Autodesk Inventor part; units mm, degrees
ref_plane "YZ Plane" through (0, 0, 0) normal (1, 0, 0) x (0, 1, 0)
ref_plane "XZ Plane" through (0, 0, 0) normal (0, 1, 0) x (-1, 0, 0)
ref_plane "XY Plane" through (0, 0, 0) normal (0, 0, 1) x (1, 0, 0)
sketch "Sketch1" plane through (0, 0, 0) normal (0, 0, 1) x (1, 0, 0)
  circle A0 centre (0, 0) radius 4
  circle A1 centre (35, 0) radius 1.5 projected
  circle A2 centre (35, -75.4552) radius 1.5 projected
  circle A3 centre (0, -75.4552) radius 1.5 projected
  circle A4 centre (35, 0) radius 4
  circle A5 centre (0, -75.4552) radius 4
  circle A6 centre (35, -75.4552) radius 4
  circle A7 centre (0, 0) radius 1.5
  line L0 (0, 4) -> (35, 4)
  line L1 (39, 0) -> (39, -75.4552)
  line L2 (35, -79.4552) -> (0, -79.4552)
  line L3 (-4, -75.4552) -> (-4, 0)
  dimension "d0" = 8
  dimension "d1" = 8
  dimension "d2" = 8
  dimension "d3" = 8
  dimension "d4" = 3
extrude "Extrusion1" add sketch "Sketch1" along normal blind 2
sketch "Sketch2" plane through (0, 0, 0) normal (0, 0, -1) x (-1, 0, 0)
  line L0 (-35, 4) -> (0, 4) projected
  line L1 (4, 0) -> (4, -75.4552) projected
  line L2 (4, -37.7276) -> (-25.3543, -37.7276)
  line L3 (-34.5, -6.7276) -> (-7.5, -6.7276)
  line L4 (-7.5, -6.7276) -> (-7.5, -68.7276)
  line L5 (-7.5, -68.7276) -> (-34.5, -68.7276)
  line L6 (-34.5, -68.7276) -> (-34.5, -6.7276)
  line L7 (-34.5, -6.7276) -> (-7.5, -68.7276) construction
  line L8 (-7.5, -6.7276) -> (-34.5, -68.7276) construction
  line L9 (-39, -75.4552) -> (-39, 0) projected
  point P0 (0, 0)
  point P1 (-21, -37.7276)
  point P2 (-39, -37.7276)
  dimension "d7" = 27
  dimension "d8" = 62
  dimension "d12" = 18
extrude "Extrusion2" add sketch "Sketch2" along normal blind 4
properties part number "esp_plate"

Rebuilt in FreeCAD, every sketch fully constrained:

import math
import FreeCAD as App
import Part
import Sketcher

V = App.Vector

doc = App.newDocument("Part")
body = doc.addObject("PartDesign::Body", "Body")

# Sketch on XY plane
sketch1 = body.newObject("Sketcher::SketchObject", "Sketch")
sketch1.AttachmentSupport = (doc.getObject("XY_Plane"), [""])
sketch1.MapMode = "FlatFace"
sketch1.addGeometry(Part.ArcOfCircle(Part.Circle(V(0, 0, 0), V(0, 0, 1), 4), math.radians(90), math.radians(180)), False)
sketch1.addGeometry(Part.LineSegment(V(-4, 0, 0), V(-4, -75.4552, 0)), False)
sketch1.addGeometry(Part.ArcOfCircle(Part.Circle(V(0, -75.4552, 0), V(0, 0, 1), 4), math.radians(180), math.radians(270)), False)
sketch1.addGeometry(Part.LineSegment(V(0, -79.4552, 0), V(35, -79.4552, 0)), False)
sketch1.addGeometry(Part.ArcOfCircle(Part.Circle(V(35, -75.4552, 0), V(0, 0, 1), 4), math.radians(-90), math.radians(0)), False)
sketch1.addGeometry(Part.LineSegment(V(39, -75.4552, 0), V(39, 0, 0)), False)
sketch1.addGeometry(Part.ArcOfCircle(Part.Circle(V(35, 0, 0), V(0, 0, 1), 4), math.radians(0), math.radians(90)), False)
sketch1.addGeometry(Part.LineSegment(V(35, 4, 0), V(0, 4, 0)), False)
sketch1.addGeometry(Part.Circle(V(0, 0, 0), V(0, 0, 1), 1.5), False)
sketch1.addGeometry(Part.Circle(V(35, 0, 0), V(0, 0, 1), 1.5), False)
sketch1.addGeometry(Part.Circle(V(35, -75.4552, 0), V(0, 0, 1), 1.5), False)
sketch1.addGeometry(Part.Circle(V(0, -75.4552, 0), V(0, 0, 1), 1.5), False)
sketch1.addConstraint(Sketcher.Constraint("Tangent", 0, 2, 1, 1))
sketch1.addConstraint(Sketcher.Constraint("Tangent", 1, 2, 2, 1))
sketch1.addConstraint(Sketcher.Constraint("Tangent", 2, 2, 3, 1))
sketch1.addConstraint(Sketcher.Constraint("Tangent", 3, 2, 4, 1))
sketch1.addConstraint(Sketcher.Constraint("Tangent", 4, 2, 5, 1))
sketch1.addConstraint(Sketcher.Constraint("Tangent", 5, 2, 6, 1))
sketch1.addConstraint(Sketcher.Constraint("Tangent", 6, 2, 7, 1))
sketch1.addConstraint(Sketcher.Constraint("Tangent", 7, 2, 0, 1))
sketch1.addConstraint(Sketcher.Constraint("Vertical", 1))
sketch1.addConstraint(Sketcher.Constraint("Horizontal", 3))
sketch1.addConstraint(Sketcher.Constraint("Vertical", 5))
sketch1.addConstraint(Sketcher.Constraint("Horizontal", 7))
sketch1.addConstraint(Sketcher.Constraint("Coincident", 0, 3, -1, 1))
sketch1.addConstraint(Sketcher.Constraint("Coincident", 8, 3, -1, 1))
sketch1.addConstraint(Sketcher.Constraint("Coincident", 9, 3, 6, 3))
sketch1.addConstraint(Sketcher.Constraint("Coincident", 10, 3, 4, 3))
sketch1.addConstraint(Sketcher.Constraint("Coincident", 11, 3, 2, 3))
sketch1.addConstraint(Sketcher.Constraint("Equal", 0, 2))
sketch1.addConstraint(Sketcher.Constraint("Equal", 2, 4))
sketch1.addConstraint(Sketcher.Constraint("Equal", 4, 6))
sketch1.addConstraint(Sketcher.Constraint("Equal", 8, 9))
sketch1.addConstraint(Sketcher.Constraint("Equal", 9, 10))
sketch1.addConstraint(Sketcher.Constraint("Equal", 10, 11))
sketch1.addConstraint(Sketcher.Constraint("Diameter", 8, 3.0))
sketch1.addConstraint(Sketcher.Constraint("Radius", 0, 4.0))
sketch1.addConstraint(Sketcher.Constraint("DistanceX", 3, 1, 3, 2, 35.0))
sketch1.addConstraint(Sketcher.Constraint("DistanceY", 1, 2, 1, 1, 75.4552))
pad1 = body.newObject("PartDesign::Pad", "Pad")
pad1.Profile = sketch1
pad1.Length = 2

# Sketch on XY plane
sketch2 = body.newObject("Sketcher::SketchObject", "Sketch001")
sketch2.AttachmentSupport = (doc.getObject("XY_Plane"), [""])
sketch2.MapMode = "FlatFace"
sketch2.addGeometry(Part.LineSegment(V(7.5, -6.7276, 0), V(34.5, -6.7276, 0)), False)
sketch2.addGeometry(Part.LineSegment(V(34.5, -6.7276, 0), V(34.5, -68.7276, 0)), False)
sketch2.addGeometry(Part.LineSegment(V(34.5, -68.7276, 0), V(7.5, -68.7276, 0)), False)
sketch2.addGeometry(Part.LineSegment(V(7.5, -68.7276, 0), V(7.5, -6.7276, 0)), False)
sketch2.addConstraint(Sketcher.Constraint("Coincident", 0, 2, 1, 1))
sketch2.addConstraint(Sketcher.Constraint("Coincident", 1, 2, 2, 1))
sketch2.addConstraint(Sketcher.Constraint("Coincident", 2, 2, 3, 1))
sketch2.addConstraint(Sketcher.Constraint("Coincident", 3, 2, 0, 1))
sketch2.addConstraint(Sketcher.Constraint("Horizontal", 0))
sketch2.addConstraint(Sketcher.Constraint("Vertical", 1))
sketch2.addConstraint(Sketcher.Constraint("Horizontal", 2))
sketch2.addConstraint(Sketcher.Constraint("Vertical", 3))
sketch2.addConstraint(Sketcher.Constraint("DistanceX", 0, 1, 0, 2, 27.0))
sketch2.addConstraint(Sketcher.Constraint("DistanceY", 1, 2, 1, 1, 62.0))
sketch2.addConstraint(Sketcher.Constraint("DistanceX", -1, 1, 0, 2, 34.5))
sketch2.addConstraint(Sketcher.Constraint("DistanceY", 0, 2, -1, 1, 6.7276))
pad2 = body.newObject("PartDesign::Pad", "Pad001")
pad2.Profile = sketch2
pad2.Length = 4
pad2.Reversed = True

doc.recompute()
